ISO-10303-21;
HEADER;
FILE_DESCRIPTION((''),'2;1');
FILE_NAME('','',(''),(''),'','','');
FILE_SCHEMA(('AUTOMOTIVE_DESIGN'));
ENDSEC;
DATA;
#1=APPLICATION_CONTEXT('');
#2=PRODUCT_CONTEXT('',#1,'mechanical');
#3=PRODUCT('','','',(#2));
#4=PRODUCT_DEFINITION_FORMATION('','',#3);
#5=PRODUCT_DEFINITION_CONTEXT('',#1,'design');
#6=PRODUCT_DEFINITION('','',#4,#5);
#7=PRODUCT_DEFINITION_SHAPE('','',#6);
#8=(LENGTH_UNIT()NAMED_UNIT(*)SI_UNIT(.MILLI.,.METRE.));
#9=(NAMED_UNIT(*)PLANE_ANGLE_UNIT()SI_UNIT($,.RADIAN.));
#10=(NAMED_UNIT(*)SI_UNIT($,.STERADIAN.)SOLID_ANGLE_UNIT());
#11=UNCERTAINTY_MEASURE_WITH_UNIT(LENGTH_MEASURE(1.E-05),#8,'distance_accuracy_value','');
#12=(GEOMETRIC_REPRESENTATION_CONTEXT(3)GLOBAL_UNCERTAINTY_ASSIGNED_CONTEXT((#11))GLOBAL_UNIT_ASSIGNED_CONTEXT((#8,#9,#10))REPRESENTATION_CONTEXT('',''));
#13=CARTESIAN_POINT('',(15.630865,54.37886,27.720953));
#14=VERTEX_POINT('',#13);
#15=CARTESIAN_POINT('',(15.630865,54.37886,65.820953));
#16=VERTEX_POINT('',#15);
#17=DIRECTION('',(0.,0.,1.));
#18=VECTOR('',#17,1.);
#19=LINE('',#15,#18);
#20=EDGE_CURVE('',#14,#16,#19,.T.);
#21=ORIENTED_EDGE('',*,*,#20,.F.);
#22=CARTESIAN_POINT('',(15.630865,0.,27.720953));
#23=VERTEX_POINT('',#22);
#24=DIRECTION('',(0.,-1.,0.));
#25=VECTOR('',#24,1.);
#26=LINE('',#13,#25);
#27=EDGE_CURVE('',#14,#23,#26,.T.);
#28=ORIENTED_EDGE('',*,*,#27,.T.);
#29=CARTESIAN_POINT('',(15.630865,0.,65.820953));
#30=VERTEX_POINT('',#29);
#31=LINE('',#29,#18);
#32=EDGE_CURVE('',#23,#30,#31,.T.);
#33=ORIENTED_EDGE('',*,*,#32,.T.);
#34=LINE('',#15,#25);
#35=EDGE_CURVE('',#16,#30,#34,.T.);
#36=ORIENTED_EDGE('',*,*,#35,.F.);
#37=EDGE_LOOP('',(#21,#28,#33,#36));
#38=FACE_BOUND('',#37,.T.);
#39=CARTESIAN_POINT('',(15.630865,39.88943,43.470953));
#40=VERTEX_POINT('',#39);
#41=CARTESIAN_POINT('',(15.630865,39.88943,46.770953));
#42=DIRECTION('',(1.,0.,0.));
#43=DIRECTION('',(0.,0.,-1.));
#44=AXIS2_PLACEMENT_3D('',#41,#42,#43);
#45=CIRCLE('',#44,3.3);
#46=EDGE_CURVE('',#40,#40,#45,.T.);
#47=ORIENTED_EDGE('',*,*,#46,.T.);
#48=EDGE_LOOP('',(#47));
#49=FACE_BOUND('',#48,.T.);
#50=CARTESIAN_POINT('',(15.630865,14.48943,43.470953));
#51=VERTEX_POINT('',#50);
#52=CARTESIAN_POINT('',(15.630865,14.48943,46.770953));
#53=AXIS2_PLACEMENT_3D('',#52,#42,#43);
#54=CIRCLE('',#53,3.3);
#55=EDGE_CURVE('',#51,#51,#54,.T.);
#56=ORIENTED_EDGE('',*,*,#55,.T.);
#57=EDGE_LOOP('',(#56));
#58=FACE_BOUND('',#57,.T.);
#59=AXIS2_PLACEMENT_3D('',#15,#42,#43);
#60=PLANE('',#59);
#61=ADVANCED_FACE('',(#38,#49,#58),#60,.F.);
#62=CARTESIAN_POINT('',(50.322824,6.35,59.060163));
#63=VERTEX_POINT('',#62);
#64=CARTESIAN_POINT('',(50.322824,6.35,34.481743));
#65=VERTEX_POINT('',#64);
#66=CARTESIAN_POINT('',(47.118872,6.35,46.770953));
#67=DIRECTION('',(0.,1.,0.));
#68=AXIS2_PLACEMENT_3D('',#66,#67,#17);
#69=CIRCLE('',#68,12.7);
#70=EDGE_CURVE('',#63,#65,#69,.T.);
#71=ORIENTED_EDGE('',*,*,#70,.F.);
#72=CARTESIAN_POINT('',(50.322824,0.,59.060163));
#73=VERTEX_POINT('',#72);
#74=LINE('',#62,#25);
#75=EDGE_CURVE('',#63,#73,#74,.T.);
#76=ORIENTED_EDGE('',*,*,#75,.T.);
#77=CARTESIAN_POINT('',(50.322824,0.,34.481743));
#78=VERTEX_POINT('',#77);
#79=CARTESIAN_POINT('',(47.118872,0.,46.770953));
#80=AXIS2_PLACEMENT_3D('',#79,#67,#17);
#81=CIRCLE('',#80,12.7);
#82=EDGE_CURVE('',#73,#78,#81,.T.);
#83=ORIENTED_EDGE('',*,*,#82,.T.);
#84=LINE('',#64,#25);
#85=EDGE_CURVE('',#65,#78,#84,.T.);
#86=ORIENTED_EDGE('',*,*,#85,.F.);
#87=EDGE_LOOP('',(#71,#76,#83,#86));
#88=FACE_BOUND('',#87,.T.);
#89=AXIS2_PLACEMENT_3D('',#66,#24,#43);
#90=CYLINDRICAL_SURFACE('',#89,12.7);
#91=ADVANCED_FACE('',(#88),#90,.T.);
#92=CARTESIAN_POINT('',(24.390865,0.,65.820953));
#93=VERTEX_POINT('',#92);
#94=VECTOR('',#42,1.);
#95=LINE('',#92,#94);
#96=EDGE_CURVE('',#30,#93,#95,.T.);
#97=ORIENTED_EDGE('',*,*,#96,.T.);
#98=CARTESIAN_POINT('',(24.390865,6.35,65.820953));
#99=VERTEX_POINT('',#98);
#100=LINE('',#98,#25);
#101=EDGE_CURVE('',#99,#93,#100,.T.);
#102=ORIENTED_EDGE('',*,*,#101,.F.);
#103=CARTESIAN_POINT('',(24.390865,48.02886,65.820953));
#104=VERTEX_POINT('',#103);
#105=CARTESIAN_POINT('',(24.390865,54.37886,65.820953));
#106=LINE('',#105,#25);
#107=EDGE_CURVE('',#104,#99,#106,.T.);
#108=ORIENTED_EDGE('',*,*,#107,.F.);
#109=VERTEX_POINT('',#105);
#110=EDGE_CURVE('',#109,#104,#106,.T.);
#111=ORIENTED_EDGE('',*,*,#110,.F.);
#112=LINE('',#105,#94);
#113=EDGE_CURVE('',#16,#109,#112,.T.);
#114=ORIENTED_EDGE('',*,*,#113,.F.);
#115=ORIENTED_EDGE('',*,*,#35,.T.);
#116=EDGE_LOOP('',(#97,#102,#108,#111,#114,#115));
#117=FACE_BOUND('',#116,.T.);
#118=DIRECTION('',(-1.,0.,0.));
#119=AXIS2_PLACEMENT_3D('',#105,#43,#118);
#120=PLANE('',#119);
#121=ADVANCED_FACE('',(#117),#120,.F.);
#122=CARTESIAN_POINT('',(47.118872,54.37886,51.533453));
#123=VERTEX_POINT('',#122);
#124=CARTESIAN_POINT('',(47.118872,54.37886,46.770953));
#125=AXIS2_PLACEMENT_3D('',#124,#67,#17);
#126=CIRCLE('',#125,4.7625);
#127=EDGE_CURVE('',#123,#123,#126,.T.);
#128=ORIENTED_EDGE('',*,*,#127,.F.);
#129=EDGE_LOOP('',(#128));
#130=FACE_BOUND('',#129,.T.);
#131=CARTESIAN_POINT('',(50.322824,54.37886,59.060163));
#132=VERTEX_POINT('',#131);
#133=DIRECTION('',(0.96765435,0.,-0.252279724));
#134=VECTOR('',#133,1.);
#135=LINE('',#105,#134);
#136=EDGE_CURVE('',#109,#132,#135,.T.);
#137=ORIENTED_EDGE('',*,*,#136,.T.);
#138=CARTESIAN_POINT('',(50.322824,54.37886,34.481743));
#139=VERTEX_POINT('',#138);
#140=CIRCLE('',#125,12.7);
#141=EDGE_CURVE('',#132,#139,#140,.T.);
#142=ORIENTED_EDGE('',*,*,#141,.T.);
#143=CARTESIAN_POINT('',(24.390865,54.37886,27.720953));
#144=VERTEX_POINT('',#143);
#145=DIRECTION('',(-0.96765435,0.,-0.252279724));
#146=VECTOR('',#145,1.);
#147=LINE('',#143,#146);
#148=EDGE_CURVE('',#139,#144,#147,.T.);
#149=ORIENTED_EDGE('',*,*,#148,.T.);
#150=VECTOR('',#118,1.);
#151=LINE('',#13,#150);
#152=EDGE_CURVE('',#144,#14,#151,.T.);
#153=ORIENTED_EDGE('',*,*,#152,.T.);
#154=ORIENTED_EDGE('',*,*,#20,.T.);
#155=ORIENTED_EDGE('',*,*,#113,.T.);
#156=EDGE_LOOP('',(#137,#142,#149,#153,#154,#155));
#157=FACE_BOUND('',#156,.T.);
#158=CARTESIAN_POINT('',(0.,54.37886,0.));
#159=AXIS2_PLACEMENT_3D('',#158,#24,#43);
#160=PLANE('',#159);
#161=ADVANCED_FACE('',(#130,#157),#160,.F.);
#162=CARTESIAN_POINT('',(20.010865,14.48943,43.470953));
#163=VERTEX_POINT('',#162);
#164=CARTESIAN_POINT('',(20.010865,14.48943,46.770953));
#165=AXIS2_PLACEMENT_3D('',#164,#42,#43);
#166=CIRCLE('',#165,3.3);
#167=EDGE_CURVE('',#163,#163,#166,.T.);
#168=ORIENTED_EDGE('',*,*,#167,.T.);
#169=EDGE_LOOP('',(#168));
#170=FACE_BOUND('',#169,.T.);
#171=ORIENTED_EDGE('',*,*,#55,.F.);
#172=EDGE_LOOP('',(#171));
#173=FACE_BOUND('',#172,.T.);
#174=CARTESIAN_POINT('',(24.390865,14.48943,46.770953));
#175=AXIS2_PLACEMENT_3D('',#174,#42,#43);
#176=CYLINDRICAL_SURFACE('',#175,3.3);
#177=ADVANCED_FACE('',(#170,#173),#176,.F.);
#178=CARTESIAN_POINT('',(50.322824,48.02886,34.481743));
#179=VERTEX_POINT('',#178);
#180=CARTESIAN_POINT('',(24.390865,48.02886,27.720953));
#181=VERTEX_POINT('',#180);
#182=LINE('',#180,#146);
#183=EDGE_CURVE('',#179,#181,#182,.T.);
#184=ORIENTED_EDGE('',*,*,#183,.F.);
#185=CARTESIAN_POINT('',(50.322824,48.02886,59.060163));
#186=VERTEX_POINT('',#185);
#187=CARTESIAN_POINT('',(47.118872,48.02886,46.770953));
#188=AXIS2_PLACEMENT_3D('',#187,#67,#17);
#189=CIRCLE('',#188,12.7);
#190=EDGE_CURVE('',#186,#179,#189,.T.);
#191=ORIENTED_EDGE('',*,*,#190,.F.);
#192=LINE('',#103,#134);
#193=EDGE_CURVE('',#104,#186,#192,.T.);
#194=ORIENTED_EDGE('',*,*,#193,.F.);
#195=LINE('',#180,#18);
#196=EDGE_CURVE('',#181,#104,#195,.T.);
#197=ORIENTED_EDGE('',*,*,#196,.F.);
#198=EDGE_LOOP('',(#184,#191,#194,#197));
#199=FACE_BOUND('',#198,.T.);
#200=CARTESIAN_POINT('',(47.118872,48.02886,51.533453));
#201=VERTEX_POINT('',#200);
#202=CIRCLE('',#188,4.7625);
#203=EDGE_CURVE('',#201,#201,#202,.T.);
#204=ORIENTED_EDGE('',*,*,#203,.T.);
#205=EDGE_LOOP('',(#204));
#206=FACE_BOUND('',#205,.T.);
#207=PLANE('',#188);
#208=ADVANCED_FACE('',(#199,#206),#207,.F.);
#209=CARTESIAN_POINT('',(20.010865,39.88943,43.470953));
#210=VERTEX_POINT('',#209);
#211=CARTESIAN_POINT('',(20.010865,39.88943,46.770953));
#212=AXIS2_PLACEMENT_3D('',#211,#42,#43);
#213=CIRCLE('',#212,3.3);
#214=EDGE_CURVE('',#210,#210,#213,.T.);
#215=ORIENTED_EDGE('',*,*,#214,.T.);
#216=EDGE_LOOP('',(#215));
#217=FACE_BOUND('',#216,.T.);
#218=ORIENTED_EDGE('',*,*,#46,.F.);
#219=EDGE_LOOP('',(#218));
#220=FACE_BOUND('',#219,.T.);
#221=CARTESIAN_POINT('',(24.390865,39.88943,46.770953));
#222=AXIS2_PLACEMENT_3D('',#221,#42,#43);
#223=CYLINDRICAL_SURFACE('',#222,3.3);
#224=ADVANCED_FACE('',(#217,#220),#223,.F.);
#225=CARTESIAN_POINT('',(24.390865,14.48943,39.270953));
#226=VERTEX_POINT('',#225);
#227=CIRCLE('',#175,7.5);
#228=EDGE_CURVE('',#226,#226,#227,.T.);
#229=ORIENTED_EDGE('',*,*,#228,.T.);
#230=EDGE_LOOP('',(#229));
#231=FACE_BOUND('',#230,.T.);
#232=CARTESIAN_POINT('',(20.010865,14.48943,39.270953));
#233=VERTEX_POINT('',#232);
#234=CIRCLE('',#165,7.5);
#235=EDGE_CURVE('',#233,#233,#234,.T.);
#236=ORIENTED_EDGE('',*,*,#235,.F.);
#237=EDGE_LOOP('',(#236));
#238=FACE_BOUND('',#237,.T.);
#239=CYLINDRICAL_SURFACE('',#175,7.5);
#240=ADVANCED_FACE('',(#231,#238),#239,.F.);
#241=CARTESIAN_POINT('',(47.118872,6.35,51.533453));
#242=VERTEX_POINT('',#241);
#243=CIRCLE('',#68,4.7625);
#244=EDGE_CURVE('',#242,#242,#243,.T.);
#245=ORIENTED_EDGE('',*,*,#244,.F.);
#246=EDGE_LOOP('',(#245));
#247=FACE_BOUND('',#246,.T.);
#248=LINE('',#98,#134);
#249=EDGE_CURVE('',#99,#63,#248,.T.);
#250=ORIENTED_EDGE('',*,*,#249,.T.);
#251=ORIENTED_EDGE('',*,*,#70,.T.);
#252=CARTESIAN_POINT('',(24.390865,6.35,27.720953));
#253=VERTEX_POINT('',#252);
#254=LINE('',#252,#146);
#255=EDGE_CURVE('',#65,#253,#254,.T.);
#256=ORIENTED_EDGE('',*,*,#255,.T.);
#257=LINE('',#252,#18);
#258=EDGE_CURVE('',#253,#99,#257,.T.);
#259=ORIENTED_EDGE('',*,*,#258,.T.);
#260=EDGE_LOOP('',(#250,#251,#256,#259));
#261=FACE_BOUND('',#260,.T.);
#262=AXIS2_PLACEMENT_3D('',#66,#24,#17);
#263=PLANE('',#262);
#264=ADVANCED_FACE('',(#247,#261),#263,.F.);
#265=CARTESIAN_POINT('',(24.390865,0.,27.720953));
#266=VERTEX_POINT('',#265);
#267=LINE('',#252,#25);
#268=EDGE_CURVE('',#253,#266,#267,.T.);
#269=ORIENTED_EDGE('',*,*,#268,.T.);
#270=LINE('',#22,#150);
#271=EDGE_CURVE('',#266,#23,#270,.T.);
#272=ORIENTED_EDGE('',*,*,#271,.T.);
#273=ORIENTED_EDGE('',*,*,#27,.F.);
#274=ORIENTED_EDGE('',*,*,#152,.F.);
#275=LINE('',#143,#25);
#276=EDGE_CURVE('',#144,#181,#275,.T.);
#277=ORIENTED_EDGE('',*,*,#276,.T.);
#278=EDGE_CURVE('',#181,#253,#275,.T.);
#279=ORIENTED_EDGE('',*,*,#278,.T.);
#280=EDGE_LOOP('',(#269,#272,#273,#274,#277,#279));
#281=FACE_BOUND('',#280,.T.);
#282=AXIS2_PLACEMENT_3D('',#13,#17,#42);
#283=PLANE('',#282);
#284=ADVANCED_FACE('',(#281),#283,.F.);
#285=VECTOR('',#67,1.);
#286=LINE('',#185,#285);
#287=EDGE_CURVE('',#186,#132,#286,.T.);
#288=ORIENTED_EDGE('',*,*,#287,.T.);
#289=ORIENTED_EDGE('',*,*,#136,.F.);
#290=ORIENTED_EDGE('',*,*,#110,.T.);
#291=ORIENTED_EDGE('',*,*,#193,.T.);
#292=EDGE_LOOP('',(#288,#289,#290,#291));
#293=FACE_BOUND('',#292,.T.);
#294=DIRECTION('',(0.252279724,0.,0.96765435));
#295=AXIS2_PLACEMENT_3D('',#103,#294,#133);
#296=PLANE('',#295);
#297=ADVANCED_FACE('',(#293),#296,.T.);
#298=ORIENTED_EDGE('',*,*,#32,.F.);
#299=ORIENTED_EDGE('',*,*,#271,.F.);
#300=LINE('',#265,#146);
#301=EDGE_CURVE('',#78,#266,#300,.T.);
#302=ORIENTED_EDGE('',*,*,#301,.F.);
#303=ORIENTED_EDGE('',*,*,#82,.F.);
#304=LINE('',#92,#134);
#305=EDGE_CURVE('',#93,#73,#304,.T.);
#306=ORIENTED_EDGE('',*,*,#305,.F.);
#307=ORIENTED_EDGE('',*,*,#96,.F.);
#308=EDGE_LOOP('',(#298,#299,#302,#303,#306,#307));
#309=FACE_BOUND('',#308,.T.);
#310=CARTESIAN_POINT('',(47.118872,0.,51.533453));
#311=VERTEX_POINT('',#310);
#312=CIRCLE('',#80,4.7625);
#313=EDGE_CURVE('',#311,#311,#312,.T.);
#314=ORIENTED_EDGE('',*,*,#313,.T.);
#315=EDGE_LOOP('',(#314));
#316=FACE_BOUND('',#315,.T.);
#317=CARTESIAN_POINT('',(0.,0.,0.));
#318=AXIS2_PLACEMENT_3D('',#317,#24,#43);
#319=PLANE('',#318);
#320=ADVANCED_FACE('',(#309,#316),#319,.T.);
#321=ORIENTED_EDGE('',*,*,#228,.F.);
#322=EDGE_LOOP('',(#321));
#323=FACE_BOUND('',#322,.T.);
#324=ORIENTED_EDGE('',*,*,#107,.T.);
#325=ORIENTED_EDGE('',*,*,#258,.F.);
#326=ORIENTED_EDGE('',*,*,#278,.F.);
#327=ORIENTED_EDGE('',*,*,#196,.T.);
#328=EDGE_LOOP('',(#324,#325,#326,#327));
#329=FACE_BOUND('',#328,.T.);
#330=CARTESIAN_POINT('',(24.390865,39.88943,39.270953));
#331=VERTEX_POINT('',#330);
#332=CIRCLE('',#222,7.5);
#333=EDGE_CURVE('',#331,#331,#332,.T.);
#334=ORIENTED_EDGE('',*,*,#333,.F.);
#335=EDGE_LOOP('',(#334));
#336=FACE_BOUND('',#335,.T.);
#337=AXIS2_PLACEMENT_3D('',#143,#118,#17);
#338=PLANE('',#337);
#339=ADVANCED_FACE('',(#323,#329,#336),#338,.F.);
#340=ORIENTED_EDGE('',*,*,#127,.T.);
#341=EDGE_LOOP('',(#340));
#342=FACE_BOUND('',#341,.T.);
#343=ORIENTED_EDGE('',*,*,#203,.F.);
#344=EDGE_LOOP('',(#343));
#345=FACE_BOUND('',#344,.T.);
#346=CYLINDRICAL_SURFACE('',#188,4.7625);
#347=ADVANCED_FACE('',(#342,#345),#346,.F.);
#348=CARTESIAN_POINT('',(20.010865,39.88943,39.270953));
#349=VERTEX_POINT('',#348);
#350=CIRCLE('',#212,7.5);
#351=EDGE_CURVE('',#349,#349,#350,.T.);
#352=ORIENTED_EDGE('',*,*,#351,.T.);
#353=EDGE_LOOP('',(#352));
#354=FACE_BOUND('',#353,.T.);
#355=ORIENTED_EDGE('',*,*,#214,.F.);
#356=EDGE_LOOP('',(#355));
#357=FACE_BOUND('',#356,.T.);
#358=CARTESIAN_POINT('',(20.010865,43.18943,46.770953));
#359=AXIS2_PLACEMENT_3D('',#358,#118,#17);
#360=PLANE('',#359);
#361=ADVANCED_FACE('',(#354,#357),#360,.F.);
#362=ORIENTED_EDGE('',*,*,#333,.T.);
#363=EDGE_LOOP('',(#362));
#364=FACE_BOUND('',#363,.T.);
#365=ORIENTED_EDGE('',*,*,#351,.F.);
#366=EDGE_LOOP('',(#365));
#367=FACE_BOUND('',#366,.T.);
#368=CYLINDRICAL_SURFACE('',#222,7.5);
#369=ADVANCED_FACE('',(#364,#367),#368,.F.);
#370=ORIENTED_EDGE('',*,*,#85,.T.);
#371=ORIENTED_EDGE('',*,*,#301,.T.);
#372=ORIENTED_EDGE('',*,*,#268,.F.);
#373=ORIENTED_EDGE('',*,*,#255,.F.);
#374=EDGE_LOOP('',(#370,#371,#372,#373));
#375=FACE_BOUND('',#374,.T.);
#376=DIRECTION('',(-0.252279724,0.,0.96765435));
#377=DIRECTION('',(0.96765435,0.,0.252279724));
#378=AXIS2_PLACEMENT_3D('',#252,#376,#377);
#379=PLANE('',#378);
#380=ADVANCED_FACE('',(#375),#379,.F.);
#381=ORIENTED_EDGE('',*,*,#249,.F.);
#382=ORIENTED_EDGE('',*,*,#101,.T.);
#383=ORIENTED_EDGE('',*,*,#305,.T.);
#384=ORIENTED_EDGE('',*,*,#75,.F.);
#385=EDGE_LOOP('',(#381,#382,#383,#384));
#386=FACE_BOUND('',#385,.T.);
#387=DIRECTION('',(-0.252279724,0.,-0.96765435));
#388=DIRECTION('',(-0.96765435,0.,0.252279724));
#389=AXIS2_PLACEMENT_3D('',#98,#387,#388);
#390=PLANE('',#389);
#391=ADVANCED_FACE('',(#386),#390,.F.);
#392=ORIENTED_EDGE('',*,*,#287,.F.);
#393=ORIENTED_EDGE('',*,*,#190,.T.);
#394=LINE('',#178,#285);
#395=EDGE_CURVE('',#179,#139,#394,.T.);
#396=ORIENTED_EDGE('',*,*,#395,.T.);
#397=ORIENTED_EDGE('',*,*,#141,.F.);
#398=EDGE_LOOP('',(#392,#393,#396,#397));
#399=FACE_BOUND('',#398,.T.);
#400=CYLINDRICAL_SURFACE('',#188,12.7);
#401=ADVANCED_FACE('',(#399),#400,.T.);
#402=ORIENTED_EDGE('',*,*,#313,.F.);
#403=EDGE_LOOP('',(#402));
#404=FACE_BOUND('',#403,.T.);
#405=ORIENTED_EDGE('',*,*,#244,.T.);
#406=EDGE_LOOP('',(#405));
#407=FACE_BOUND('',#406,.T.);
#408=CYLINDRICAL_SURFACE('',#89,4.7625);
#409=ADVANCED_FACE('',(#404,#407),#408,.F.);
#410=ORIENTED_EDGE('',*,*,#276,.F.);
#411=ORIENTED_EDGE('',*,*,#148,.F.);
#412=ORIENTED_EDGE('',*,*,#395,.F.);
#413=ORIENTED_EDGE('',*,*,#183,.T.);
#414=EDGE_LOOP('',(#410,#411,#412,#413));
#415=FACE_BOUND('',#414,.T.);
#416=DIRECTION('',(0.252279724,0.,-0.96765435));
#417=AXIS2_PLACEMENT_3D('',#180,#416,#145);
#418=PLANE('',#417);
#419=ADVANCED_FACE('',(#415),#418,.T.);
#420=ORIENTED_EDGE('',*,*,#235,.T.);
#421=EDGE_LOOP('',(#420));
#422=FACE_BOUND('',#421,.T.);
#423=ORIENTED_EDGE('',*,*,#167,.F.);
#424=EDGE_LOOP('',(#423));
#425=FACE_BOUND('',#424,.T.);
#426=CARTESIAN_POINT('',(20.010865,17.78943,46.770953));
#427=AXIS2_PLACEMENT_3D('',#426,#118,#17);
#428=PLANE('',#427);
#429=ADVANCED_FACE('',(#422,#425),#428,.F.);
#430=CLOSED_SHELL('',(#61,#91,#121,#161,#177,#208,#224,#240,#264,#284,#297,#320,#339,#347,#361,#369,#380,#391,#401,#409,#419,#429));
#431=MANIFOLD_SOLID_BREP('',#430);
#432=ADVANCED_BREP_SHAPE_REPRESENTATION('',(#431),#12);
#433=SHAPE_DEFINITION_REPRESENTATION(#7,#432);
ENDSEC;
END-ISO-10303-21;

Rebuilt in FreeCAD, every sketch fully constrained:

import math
import FreeCAD as App
import Part
import Sketcher

V = App.Vector
Q = App.Units.Quantity


def add_polygon(sketch, points):
    """Adds a closed chain of lines whose ends are joined by coincident constraints."""
    first, n = sketch.GeometryCount, len(points)
    for a, b in zip(points, points[1:] + points[:1]):
        sketch.addGeometry(Part.LineSegment(App.Vector(*a, 0), App.Vector(*b, 0)), False)
    for i in range(n):
        sketch.addConstraint(Sketcher.Constraint("Coincident", first + i, 2, first + (i + 1) % n, 1))

doc = App.newDocument("Part")
body = doc.addObject("PartDesign::Body", "Body")

# Sketch on XZ plane
sketch1 = doc.addObject("Sketcher::SketchObject", "Sketch")
body.addObject(sketch1)
sketch1.AttachmentSupport = (doc.XZ_Plane, [""])
sketch1.MapMode = "FlatFace"
add_polygon(sketch1, [(15.630865, 27.720953), (15.630865, 65.820953), (24.390865, 65.820953), (24.390865, 27.720953)])  # lines 0-3
sketch1.addConstraint(Sketcher.Constraint("Vertical", 0))
sketch1.addConstraint(Sketcher.Constraint("Horizontal", 1))
sketch1.addConstraint(Sketcher.Constraint("Vertical", 2))
sketch1.addConstraint(Sketcher.Constraint("Horizontal", 3))
sketch1.addConstraint(Sketcher.Constraint("DistanceY", 0, 1, 0, 2, Q("1.5 in")))
sketch1.addConstraint(Sketcher.Constraint("DistanceX", 1, 1, 1, 2, 8.76))
sketch1.addConstraint(Sketcher.Constraint("DistanceX", -1, 1, 0, 2, 15.630865))
sketch1.addConstraint(Sketcher.Constraint("DistanceY", -1, 1, 0, 2, 65.820953))
pad1 = doc.addObject("PartDesign::Pad", "Pad")
body.addObject(pad1)
pad1.Profile = sketch1
pad1.Length = Q("2.1409 in")
pad1.Reversed = True

# Sketch on YZ plane
sketch2 = doc.addObject("Sketcher::SketchObject", "Sketch001")
body.addObject(sketch2)
sketch2.AttachmentSupport = (doc.YZ_Plane, [""])
sketch2.MapMode = "FlatFace"
sketch2.AttachmentOffset = App.Placement(V(0, 0, 24.390865), App.Rotation())
sketch2.addGeometry(Part.Circle(V(14.48943, 46.770953, 0), V(0, 0, 1), 3.3), False)
sketch2.addGeometry(Part.Circle(V(39.88943, 46.770953, 0), V(0, 0, 1), 3.3), False)
sketch2.addConstraint(Sketcher.Constraint("Equal", 0, 1))
sketch2.addConstraint(Sketcher.Constraint("Horizontal", 0, 3, 1, 3))
sketch2.addConstraint(Sketcher.Constraint("DistanceX", 0, 3, 1, 3, Q("1 in")))
sketch2.addConstraint(Sketcher.Constraint("Diameter", 0, 6.6))
sketch2.addConstraint(Sketcher.Constraint("DistanceX", -1, 1, 0, 3, 14.48943))
sketch2.addConstraint(Sketcher.Constraint("DistanceY", -1, 1, 0, 3, 46.770953))
doc.recompute()
hole = doc.addObject("PartDesign::Hole", "Hole")
body.addObject(hole)
hole.Profile = sketch2
hole.ThreadType = "None"
hole.Diameter = 6.6
hole.DepthType = "Dimension"
hole.Depth = 14.01916
hole.DrillPoint = "Angled"
hole.DrillPointAngle = 118
hole.HoleCutType = "Counterbore"
hole.HoleCutDiameter = 15
hole.HoleCutDepth = 4.38

# Sketch on XZ plane
sketch3 = doc.addObject("Sketcher::SketchObject", "Sketch002")
body.addObject(sketch3)
sketch3.AttachmentSupport = (doc.XZ_Plane, [""])
sketch3.MapMode = "FlatFace"
sketch3.AttachmentOffset = App.Placement(V(0, 0, -2.1409 * 25.4), App.Rotation())
sketch3.addGeometry(Part.LineSegment(V(24.390865, 27.720953, 0), V(24.390865, 65.820953, 0)), False)
sketch3.addGeometry(Part.LineSegment(V(24.390865, 65.820953, 0), V(50.322824, 59.060163, 0)), False)
sketch3.addGeometry(Part.ArcOfCircle(Part.Circle(V(47.118872, 46.770953, 0), V(0, 0, 1), 12.7), math.radians(-75.387544), math.radians(75.387544)), False)
sketch3.addGeometry(Part.LineSegment(V(50.322824, 34.481743, 0), V(24.390865, 27.720953, 0)), False)
sketch3.addGeometry(Part.Circle(V(47.118872, 46.770953, 0), V(0, 0, 1), 4.7625), False)
sketch3.addConstraint(Sketcher.Constraint("Coincident", 0, 2, 1, 1))
sketch3.addConstraint(Sketcher.Constraint("Tangent", 1, 2, 2, 2))
sketch3.addConstraint(Sketcher.Constraint("Tangent", 2, 1, 3, 1))
sketch3.addConstraint(Sketcher.Constraint("Coincident", 3, 2, 0, 1))
sketch3.addConstraint(Sketcher.Constraint("Vertical", 0))
sketch3.addConstraint(Sketcher.Constraint("Coincident", 4, 3, 2, 3))
sketch3.addConstraint(Sketcher.Constraint("Vertical", 1, 2, 2, 1))
sketch3.addConstraint(Sketcher.Constraint("Radius", 2, Q("0.5 in")))
sketch3.addConstraint(Sketcher.Constraint("Diameter", 4, Q("0.375 in")))
sketch3.addConstraint(Sketcher.Constraint("DistanceY", 0, 1, 0, 2, Q("1.5 in")))
sketch3.addConstraint(Sketcher.Constraint("DistanceX", -1, 1, 2, 3, 47.118872))
sketch3.addConstraint(Sketcher.Constraint("DistanceY", 2, 3, 1, 2, 12.28921))
sketch3.addConstraint(Sketcher.Constraint("DistanceY", -1, 1, 2, 3, 46.770953))
pad2 = doc.addObject("PartDesign::Pad", "Pad001")
body.addObject(pad2)
pad2.Profile = sketch3
pad2.Length = Q("0.25 in")
doc.recompute()

datumplane = doc.addObject("PartDesign::Plane", "DatumPlane")
body.addObject(datumplane)
datumplane.AttachmentSupport = (doc.XZ_Plane, [""])
datumplane.MapMode = "FlatFace"
datumplane.AttachmentOffset = App.Placement(V(0, 0, -27.18943), App.Rotation())
mirrored = doc.addObject("PartDesign::Mirrored", "Mirrored")
body.addObject(mirrored)
mirrored.Originals = [pad2]
mirrored.MirrorPlane = (datumplane, [""])
body.Tip = mirrored

doc.recompute()
